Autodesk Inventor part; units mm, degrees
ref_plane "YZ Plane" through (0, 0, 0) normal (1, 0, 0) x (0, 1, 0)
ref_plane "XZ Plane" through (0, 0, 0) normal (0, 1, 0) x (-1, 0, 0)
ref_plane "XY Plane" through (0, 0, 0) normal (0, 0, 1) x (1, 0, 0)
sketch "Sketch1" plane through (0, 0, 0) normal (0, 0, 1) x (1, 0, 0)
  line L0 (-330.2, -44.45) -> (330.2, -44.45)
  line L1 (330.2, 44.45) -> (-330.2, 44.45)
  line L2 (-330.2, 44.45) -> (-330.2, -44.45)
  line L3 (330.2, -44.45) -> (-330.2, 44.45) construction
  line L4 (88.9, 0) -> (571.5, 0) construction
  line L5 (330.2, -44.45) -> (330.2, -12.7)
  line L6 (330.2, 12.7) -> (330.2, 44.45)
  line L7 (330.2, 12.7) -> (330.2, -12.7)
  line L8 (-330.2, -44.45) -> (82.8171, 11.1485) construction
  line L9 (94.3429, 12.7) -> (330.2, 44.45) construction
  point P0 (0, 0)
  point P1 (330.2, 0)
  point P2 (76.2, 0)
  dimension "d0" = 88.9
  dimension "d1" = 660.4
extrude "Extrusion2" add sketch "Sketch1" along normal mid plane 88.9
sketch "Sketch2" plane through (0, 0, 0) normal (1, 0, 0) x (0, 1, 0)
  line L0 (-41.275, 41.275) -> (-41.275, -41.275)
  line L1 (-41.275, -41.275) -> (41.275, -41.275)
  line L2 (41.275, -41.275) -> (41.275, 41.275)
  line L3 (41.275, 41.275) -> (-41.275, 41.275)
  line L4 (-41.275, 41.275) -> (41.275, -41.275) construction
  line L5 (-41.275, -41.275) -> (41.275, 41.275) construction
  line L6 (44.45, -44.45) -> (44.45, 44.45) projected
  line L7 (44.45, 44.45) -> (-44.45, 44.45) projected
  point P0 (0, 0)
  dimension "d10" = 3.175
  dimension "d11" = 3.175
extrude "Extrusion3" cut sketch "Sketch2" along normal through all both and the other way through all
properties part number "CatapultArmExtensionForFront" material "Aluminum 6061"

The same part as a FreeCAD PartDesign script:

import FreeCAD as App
import Part
import Sketcher

V = App.Vector
Q = App.Units.Quantity

doc = App.newDocument("Part")
params = doc.addObject("Spreadsheet::Sheet", "Params")
for row, (alias, value) in enumerate([
    ("sketch1_width", "26 in"),
    ("sketch1_height", "3.5 in"),
    ("pad1_length", "3.5 in"),
    ("sketch2_width", "3.25 in"),
], start=1):
    params.set(f"A{row}", alias)
    params.set(f"B{row}", "=" + value)
    params.setAlias(f"B{row}", alias)

body = doc.addObject("PartDesign::Body", "Body")

# Sketch on XY plane
sketch1 = body.newObject("Sketcher::SketchObject", "Sketch")
sketch1.AttachmentSupport = (doc.getObject("XY_Plane"), [""])
sketch1.MapMode = "FlatFace"
sketch1.addGeometry(Part.LineSegment(V(-330, 44, 0), V(-330, -44, 0)), False)
sketch1.addGeometry(Part.LineSegment(V(-330, -44, 0), V(330, -44, 0)), False)
sketch1.addGeometry(Part.LineSegment(V(330, -44, 0), V(330, 44, 0)), False)
sketch1.addGeometry(Part.LineSegment(V(330, 44, 0), V(-330, 44, 0)), False)
sketch1.addConstraint(Sketcher.Constraint("Coincident", 0, 2, 1, 1))
sketch1.addConstraint(Sketcher.Constraint("Coincident", 1, 2, 2, 1))
sketch1.addConstraint(Sketcher.Constraint("Coincident", 2, 2, 3, 1))
sketch1.addConstraint(Sketcher.Constraint("Coincident", 3, 2, 0, 1))
sketch1.addConstraint(Sketcher.Constraint("Vertical", 0))
sketch1.addConstraint(Sketcher.Constraint("Horizontal", 1))
sketch1.addConstraint(Sketcher.Constraint("Vertical", 2))
sketch1.addConstraint(Sketcher.Constraint("Horizontal", 3))
sketch1.addConstraint(Sketcher.Constraint("Symmetric", 0, 2, 2, 2, -1, 1))
sketch1.addConstraint(Sketcher.Constraint("DistanceX", 1, 1, 1, 2, Q("26 in")))
sketch1.addConstraint(Sketcher.Constraint("DistanceY", 0, 2, 0, 1, Q("3.5 in")))
sketch1.setExpression("Constraints[9]", "Params.sketch1_width")
sketch1.setExpression("Constraints[10]", "Params.sketch1_height")
pad1 = body.newObject("PartDesign::Pad", "Pad")
pad1.Profile = sketch1
pad1.setExpression("Length", "Params.pad1_length")
pad1.Midplane = True

# Sketch on YZ plane
sketch2 = body.newObject("Sketcher::SketchObject", "Sketch001")
sketch2.AttachmentSupport = (doc.getObject("YZ_Plane"), [""])
sketch2.MapMode = "FlatFace"
sketch2.addGeometry(Part.LineSegment(V(41, 41, 0), V(-41, 41, 0)), False)
sketch2.addGeometry(Part.LineSegment(V(-41, 41, 0), V(-41, -41, 0)), False)
sketch2.addGeometry(Part.LineSegment(V(-41, -41, 0), V(41, -41, 0)), False)
sketch2.addGeometry(Part.LineSegment(V(41, -41, 0), V(41, 41, 0)), False)
sketch2.addConstraint(Sketcher.Constraint("Coincident", 0, 2, 1, 1))
sketch2.addConstraint(Sketcher.Constraint("Coincident", 1, 2, 2, 1))
sketch2.addConstraint(Sketcher.Constraint("Coincident", 2, 2, 3, 1))
sketch2.addConstraint(Sketcher.Constraint("Coincident", 3, 2, 0, 1))
sketch2.addConstraint(Sketcher.Constraint("Horizontal", 0))
sketch2.addConstraint(Sketcher.Constraint("Vertical", 1))
sketch2.addConstraint(Sketcher.Constraint("Horizontal", 2))
sketch2.addConstraint(Sketcher.Constraint("Vertical", 3))
sketch2.addConstraint(Sketcher.Constraint("Symmetric", 0, 2, 2, 2, -1, 1))
sketch2.addConstraint(Sketcher.Constraint("Equal", 2, 1))
sketch2.addConstraint(Sketcher.Constraint("DistanceX", 0, 2, 0, 1, Q("3.25 in")))
sketch2.setExpression("Constraints[10]", "Params.sketch2_width")
pocket1 = body.newObject("PartDesign::Pocket", "Pocket")
pocket1.Profile = sketch2
pocket1.Type = "ThroughAll"
pocket1.Midplane = True

doc.recompute()
